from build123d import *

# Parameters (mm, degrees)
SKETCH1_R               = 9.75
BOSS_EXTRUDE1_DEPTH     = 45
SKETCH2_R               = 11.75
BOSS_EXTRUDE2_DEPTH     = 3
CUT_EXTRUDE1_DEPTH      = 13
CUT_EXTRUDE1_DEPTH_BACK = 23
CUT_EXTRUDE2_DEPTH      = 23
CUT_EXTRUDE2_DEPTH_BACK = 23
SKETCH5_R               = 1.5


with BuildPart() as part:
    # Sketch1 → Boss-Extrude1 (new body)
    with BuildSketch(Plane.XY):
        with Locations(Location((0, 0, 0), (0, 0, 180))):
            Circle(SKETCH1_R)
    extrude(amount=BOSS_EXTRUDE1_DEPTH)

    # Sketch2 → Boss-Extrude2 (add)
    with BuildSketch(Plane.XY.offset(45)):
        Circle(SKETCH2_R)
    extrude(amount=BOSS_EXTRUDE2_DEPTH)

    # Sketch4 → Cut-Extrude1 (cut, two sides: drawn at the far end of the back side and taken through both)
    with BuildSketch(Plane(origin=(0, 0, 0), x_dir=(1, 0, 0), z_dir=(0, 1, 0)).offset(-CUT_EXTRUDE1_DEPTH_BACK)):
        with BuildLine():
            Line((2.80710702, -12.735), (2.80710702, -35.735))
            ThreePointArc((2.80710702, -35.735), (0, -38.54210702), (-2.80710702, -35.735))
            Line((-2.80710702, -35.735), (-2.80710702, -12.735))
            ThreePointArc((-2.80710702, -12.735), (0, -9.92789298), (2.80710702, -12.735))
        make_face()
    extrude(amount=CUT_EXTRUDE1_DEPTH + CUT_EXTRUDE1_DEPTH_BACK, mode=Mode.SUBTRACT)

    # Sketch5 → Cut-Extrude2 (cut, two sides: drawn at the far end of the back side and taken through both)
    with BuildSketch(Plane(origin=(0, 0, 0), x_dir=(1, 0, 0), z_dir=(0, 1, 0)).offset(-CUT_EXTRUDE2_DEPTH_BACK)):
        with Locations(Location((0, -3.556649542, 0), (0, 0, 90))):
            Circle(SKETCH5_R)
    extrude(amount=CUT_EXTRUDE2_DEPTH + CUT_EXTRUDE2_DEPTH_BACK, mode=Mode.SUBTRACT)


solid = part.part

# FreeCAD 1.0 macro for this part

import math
import FreeCAD as App
import Part
import Sketcher

V = App.Vector
Q = App.Units.Quantity

doc = App.newDocument("Part")
body = doc.addObject("PartDesign::Body", "Body")

# Sketch on XY plane
sketch1 = doc.addObject("Sketcher::SketchObject", "Sketch")
body.addObject(sketch1)
sketch1.AttachmentSupport = (doc.XY_Plane, [""])
sketch1.MapMode = "FlatFace"
sketch1.addGeometry(Part.Circle(V(0, 0, 0), V(0, 0, 1), 10), False)
sketch1.addConstraint(Sketcher.Constraint("Coincident", 0, 3, -1, 1))
sketch1.addConstraint(Sketcher.Constraint("Diameter", 0, Q("19.5 mm")))
pad1 = doc.addObject("PartDesign::Pad", "Pad")
body.addObject(pad1)
pad1.Profile = sketch1
pad1.Length = 45

# Sketch on XY plane
sketch2 = doc.addObject("Sketcher::SketchObject", "Sketch001")
body.addObject(sketch2)
sketch2.AttachmentSupport = (doc.XY_Plane, [""])
sketch2.MapMode = "FlatFace"
sketch2.AttachmentOffset = App.Placement(V(0, 0, 45), App.Rotation())
sketch2.addGeometry(Part.Circle(V(0, 0, 0), V(0, 0, 1), 12), False)
sketch2.addConstraint(Sketcher.Constraint("Coincident", 0, 3, -1, 1))
sketch2.addConstraint(Sketcher.Constraint("Diameter", 0, Q("23.5 mm")))
pad2 = doc.addObject("PartDesign::Pad", "Pad001")
body.addObject(pad2)
pad2.Profile = sketch2
pad2.Length = 3

# Sketch on XZ plane
sketch3 = doc.addObject("Sketcher::SketchObject", "Sketch002")
body.addObject(sketch3)
sketch3.AttachmentSupport = (doc.XZ_Plane, [""])
sketch3.MapMode = "FlatFace"
sketch3.addGeometry(Part.LineSegment(V(2.8, 35.7, 0), V(2.8, 12.7, 0)), False)
sketch3.addGeometry(Part.ArcOfCircle(Part.Circle(V(0, 12.7, 0), V(0, 0, 1), 2.8), math.radians(180), math.radians(360)), False)
sketch3.addGeometry(Part.LineSegment(V(-2.8, 12.7, 0), V(-2.8, 35.7, 0)), False)
sketch3.addGeometry(Part.ArcOfCircle(Part.Circle(V(0, 35.7, 0), V(0, 0, 1), 2.8), math.radians(0), math.radians(180)), False)
sketch3.addConstraint(Sketcher.Constraint("Tangent", 0, 2, 1, 2))
sketch3.addConstraint(Sketcher.Constraint("Tangent", 1, 1, 2, 1))
sketch3.addConstraint(Sketcher.Constraint("Tangent", 2, 2, 3, 2))
sketch3.addConstraint(Sketcher.Constraint("Tangent", 3, 1, 0, 1))
sketch3.addConstraint(Sketcher.Constraint("Vertical", 0))
sketch3.addConstraint(Sketcher.Constraint("Vertical", 2))
sketch3.addConstraint(Sketcher.Constraint("PointOnObject", 1, 3, -2))
sketch3.addConstraint(Sketcher.Constraint("DistanceY", 0, 2, 0, 1, Q("23 mm")))
sketch3.addConstraint(Sketcher.Constraint("DistanceY", -1, 1, 1, 3, Q("12.735 mm")))
sketch3.addConstraint(Sketcher.Constraint("Radius", 1, Q("2.807107 mm")))
pocket1 = doc.addObject("PartDesign::Pocket", "Pocket")
body.addObject(pocket1)
pocket1.Profile = sketch3
pocket1.Type = "ThroughAll"
pocket1.Midplane = True

# Sketch on XZ plane
sketch4 = doc.addObject("Sketcher::SketchObject", "Sketch003")
body.addObject(sketch4)
sketch4.AttachmentSupport = (doc.XZ_Plane, [""])
sketch4.MapMode = "FlatFace"
sketch4.addGeometry(Part.Circle(V(0, 3.6, 0), V(0, 0, 1), 1.5), False)
sketch4.addConstraint(Sketcher.Constraint("PointOnObject", 0, 3, -2))
sketch4.addConstraint(Sketcher.Constraint("Diameter", 0, Q("3 mm")))
sketch4.addConstraint(Sketcher.Constraint("DistanceY", -1, 1, 0, 3, Q("3.55665 mm")))
pocket2 = doc.addObject("PartDesign::Pocket", "Pocket001")
body.addObject(pocket2)
pocket2.Profile = sketch4
pocket2.Type = "ThroughAll"
pocket2.Midplane = True

doc.recompute()
